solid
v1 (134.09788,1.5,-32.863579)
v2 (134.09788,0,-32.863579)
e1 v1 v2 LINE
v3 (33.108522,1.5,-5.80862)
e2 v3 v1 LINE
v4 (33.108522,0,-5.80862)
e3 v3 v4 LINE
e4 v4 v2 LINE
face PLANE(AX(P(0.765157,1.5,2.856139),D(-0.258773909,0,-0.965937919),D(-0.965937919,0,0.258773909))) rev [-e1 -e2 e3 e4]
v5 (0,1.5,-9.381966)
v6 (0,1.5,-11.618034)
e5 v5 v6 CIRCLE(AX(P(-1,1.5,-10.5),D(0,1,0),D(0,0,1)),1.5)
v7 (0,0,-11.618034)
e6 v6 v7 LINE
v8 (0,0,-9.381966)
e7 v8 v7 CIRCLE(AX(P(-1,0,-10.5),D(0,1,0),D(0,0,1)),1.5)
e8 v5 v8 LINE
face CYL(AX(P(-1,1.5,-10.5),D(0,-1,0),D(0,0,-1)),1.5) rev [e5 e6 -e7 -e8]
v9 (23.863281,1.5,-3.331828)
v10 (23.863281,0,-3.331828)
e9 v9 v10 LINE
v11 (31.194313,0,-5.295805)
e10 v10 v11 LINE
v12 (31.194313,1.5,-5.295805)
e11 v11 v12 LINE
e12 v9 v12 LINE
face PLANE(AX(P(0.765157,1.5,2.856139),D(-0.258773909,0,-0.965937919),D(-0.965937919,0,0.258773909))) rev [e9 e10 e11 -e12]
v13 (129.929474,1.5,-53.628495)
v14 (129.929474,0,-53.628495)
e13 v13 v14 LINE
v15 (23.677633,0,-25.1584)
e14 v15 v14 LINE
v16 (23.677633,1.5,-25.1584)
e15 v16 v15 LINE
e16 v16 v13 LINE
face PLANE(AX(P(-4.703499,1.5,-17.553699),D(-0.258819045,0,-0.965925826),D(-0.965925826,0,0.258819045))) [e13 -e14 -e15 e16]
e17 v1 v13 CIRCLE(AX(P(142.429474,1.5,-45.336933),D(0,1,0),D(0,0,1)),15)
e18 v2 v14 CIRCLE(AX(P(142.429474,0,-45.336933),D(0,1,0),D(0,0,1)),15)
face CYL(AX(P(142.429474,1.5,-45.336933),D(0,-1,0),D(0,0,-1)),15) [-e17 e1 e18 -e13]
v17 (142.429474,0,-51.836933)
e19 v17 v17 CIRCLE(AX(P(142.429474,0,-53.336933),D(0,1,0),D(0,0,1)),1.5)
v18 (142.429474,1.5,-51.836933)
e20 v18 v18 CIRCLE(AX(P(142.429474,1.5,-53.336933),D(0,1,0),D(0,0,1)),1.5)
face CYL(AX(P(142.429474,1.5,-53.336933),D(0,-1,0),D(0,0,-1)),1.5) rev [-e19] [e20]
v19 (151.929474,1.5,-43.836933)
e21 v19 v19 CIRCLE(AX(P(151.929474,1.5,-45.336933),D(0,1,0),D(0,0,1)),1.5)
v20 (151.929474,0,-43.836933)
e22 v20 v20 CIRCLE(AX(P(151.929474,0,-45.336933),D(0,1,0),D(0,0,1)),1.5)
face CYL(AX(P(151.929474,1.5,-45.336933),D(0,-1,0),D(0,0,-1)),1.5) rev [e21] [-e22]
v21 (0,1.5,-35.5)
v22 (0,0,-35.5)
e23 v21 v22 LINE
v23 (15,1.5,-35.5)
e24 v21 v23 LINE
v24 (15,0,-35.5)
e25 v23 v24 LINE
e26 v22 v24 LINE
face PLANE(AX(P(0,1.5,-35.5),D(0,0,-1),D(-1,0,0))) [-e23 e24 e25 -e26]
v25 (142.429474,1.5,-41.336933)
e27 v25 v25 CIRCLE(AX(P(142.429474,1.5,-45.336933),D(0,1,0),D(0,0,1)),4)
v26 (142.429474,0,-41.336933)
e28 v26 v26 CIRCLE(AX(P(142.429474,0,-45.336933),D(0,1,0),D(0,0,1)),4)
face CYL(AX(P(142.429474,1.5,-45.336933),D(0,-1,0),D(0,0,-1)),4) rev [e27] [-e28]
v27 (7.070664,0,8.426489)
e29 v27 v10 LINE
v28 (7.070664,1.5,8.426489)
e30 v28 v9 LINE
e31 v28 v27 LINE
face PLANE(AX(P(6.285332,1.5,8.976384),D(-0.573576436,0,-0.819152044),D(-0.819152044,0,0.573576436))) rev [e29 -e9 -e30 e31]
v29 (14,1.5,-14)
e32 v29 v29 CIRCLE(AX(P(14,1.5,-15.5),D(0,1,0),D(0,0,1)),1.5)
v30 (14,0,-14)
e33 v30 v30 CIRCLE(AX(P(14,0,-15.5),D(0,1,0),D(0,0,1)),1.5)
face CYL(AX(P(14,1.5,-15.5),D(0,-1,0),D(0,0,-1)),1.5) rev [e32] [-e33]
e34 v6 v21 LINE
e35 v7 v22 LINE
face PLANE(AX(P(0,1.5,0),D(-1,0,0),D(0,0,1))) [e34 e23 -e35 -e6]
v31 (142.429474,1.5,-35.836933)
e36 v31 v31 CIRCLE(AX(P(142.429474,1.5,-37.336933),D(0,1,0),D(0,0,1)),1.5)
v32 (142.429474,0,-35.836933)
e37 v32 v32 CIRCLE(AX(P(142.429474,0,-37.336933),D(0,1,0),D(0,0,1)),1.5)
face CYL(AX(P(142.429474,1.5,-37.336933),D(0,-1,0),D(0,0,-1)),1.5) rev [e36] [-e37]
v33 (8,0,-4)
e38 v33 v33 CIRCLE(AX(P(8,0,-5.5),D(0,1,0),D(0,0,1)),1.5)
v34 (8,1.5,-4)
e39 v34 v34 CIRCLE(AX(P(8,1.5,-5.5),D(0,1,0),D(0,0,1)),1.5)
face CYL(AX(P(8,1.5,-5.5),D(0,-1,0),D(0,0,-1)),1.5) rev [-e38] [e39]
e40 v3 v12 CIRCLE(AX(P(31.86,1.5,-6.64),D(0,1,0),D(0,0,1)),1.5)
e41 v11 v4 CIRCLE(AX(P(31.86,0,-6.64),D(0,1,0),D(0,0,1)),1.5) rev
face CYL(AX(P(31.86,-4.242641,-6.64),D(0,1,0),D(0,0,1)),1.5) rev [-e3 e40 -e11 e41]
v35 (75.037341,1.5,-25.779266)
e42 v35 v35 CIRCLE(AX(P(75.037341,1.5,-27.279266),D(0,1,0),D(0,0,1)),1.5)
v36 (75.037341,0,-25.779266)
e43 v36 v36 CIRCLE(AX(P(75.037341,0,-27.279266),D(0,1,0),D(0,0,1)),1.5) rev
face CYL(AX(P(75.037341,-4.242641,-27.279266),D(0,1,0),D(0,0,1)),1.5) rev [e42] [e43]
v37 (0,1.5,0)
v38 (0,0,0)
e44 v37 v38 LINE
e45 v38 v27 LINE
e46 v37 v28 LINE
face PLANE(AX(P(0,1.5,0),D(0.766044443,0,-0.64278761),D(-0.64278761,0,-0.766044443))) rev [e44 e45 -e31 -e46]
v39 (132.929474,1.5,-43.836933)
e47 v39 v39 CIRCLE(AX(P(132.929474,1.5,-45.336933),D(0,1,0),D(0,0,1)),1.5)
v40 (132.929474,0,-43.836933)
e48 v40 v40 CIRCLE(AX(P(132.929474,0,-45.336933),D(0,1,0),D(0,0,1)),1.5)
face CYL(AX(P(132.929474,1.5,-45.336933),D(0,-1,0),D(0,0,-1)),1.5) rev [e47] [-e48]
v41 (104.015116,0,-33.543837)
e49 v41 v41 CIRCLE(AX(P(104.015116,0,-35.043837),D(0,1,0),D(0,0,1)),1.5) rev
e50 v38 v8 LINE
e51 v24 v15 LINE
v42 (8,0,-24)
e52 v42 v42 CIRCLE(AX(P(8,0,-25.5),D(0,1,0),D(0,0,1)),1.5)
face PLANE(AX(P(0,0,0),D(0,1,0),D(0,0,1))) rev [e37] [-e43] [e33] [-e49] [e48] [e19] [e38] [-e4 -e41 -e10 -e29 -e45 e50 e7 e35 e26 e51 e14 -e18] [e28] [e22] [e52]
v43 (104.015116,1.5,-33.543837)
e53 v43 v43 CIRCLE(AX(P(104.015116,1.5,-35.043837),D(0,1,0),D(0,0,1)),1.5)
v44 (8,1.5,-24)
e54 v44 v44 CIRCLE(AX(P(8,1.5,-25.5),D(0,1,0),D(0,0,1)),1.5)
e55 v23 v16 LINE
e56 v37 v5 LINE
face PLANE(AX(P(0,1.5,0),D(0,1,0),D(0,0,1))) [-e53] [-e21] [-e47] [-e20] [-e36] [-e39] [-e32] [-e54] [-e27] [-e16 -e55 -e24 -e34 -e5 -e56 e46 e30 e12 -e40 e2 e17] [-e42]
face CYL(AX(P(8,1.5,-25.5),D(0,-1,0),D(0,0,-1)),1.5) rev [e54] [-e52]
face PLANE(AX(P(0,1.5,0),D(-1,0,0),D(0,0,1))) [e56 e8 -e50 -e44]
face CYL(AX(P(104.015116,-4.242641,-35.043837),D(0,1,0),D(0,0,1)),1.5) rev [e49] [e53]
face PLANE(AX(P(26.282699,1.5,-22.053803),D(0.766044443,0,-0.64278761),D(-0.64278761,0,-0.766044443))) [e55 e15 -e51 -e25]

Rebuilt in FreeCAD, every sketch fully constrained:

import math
import FreeCAD as App
import Part
import Sketcher
Q = App.Units.Quantity

doc = App.newDocument("Part")
body = doc.addObject("PartDesign::Body", "Body")

sketch1 = body.newObject("Sketcher::SketchObject", "Sketch")
sketch1.AttachmentSupport = (doc.getObject("XZ_Plane"), [""])
sketch1.MapMode = "FlatFace"
sketch1.addGeometry(Part.LineSegment(App.Vector(0, -9.381966, 0), App.Vector(0, 0, 0)), False)
sketch1.addGeometry(Part.LineSegment(App.Vector(0, 0, 0), App.Vector(7.070664, 8.426489, 0)), False)
sketch1.addGeometry(Part.LineSegment(App.Vector(7.070664, 8.426489, 0), App.Vector(23.863281, -3.331828, 0)), False)
sketch1.addGeometry(Part.LineSegment(App.Vector(23.863281, -3.331828, 0), App.Vector(134.09788, -32.863579, 0)), False)
sketch1.addGeometry(Part.ArcOfCircle(Part.Circle(App.Vector(142.429474, -45.336933, 0), App.Vector(0, 0, 1), 15), math.radians(-146.44269), math.radians(123.740995)), False)
sketch1.addGeometry(Part.LineSegment(App.Vector(129.929474, -53.628495, 0), App.Vector(23.677633, -25.1584, 0)), False)
sketch1.addGeometry(Part.LineSegment(App.Vector(23.677633, -25.1584, 0), App.Vector(15, -35.5, 0)), False)
sketch1.addGeometry(Part.LineSegment(App.Vector(15, -35.5, 0), App.Vector(0, -35.5, 0)), False)
sketch1.addGeometry(Part.LineSegment(App.Vector(0, -35.5, 0), App.Vector(0, -11.618034, 0)), False)
sketch1.addGeometry(Part.ArcOfCircle(Part.Circle(App.Vector(-1, -10.5, 0), App.Vector(0, 0, 1), 1.5), math.radians(-48.189685), math.radians(48.189685)), False)
sketch1.addGeometry(Part.Circle(App.Vector(8, -5.5, 0), App.Vector(0, 0, 1), 1.5), False)
sketch1.addGeometry(Part.Circle(App.Vector(14, -15.5, 0), App.Vector(0, 0, 1), 1.5), False)
sketch1.addGeometry(Part.Circle(App.Vector(8, -25.5, 0), App.Vector(0, 0, 1), 1.5), False)
sketch1.addGeometry(Part.Circle(App.Vector(142.429474, -37.336933, 0), App.Vector(0, 0, 1), 1.5), False)
sketch1.addGeometry(Part.Circle(App.Vector(151.929474, -45.336933, 0), App.Vector(0, 0, 1), 1.5), False)
sketch1.addGeometry(Part.Circle(App.Vector(142.429474, -45.336933, 0), App.Vector(0, 0, 1), 4), False)
sketch1.addGeometry(Part.Circle(App.Vector(132.929474, -45.336933, 0), App.Vector(0, 0, 1), 1.5), False)
sketch1.addGeometry(Part.Circle(App.Vector(142.429474, -53.336933, 0), App.Vector(0, 0, 1), 1.5), False)
sketch1.addConstraint(Sketcher.Constraint("Coincident", 0, 2, 1, 1))
sketch1.addConstraint(Sketcher.Constraint("Coincident", 1, 2, 2, 1))
sketch1.addConstraint(Sketcher.Constraint("Coincident", 2, 2, 3, 1))
sketch1.addConstraint(Sketcher.Constraint("Coincident", 3, 2, 4, 2))
sketch1.addConstraint(Sketcher.Constraint("Coincident", 4, 1, 5, 1))
sketch1.addConstraint(Sketcher.Constraint("Coincident", 5, 2, 6, 1))
sketch1.addConstraint(Sketcher.Constraint("Coincident", 6, 2, 7, 1))
sketch1.addConstraint(Sketcher.Constraint("Coincident", 7, 2, 8, 1))
sketch1.addConstraint(Sketcher.Constraint("Coincident", 8, 2, 9, 1))
sketch1.addConstraint(Sketcher.Constraint("Coincident", 9, 2, 0, 1))
sketch1.addConstraint(Sketcher.Constraint("Vertical", 0))
sketch1.addConstraint(Sketcher.Constraint("Horizontal", 7))
sketch1.addConstraint(Sketcher.Constraint("Vertical", 8))
sketch1.addConstraint(Sketcher.Constraint("Coincident", 0, 2, -1, 1))
sketch1.addConstraint(Sketcher.Constraint("Coincident", 15, 3, 4, 3))
sketch1.addConstraint(Sketcher.Constraint("Equal", 9, 10))
sketch1.addConstraint(Sketcher.Constraint("Equal", 10, 11))
sketch1.addConstraint(Sketcher.Constraint("Equal", 11, 12))
sketch1.addConstraint(Sketcher.Constraint("Equal", 12, 13))
sketch1.addConstraint(Sketcher.Constraint("Equal", 13, 14))
sketch1.addConstraint(Sketcher.Constraint("Equal", 14, 16))
sketch1.addConstraint(Sketcher.Constraint("Equal", 16, 17))
sketch1.addConstraint(Sketcher.Constraint("PointOnObject", 7, 2, -2))
sketch1.addConstraint(Sketcher.Constraint("Parallel", 1, 6))
sketch1.addConstraint(Sketcher.Constraint("Horizontal", 4, 3, 14, 3))
sketch1.addConstraint(Sketcher.Constraint("Horizontal", 15, 3, 16, 3))
sketch1.addConstraint(Sketcher.Constraint("Vertical", 10, 3, 12, 3))
sketch1.addConstraint(Sketcher.Constraint("Vertical", 4, 3, 13, 3))
sketch1.addConstraint(Sketcher.Constraint("Vertical", 15, 3, 17, 3))
sketch1.addConstraint(Sketcher.Constraint("Diameter", 10, 3.0))
sketch1.addConstraint(Sketcher.Constraint("Diameter", 15, 8.0))
sketch1.addConstraint(Sketcher.Constraint("Radius", 4, 15.0))
sketch1.addConstraint(Sketcher.Constraint("DistanceX", 7, 2, 7, 1, 15.0))
sketch1.addConstraint(Sketcher.Constraint("Angle", 1, Q("50 deg")))
sketch1.addConstraint(Sketcher.Constraint("Angle", 2, Q("-35 deg")))
sketch1.addConstraint(Sketcher.Constraint("Angle", 5, Q("165 deg")))
sketch1.addConstraint(Sketcher.Constraint("Distance", 1, 11.0))
sketch1.addConstraint(Sketcher.Constraint("Distance", 5, 110.0))
sketch1.addConstraint(Sketcher.Constraint("DistanceX", 9, 3, -1, 1, 1.0))
sketch1.addConstraint(Sketcher.Constraint("DistanceX", -1, 1, 10, 3, 8.0))
sketch1.addConstraint(Sketcher.Constraint("DistanceX", -1, 1, 11, 3, 14.0))
sketch1.addConstraint(Sketcher.Constraint("DistanceY", 9, 3, 10, 3, 5.0))
sketch1.addConstraint(Sketcher.Constraint("DistanceY", 11, 3, 10, 3, 10.0))
sketch1.addConstraint(Sketcher.Constraint("DistanceY", 12, 3, 11, 3, 10.0))
sketch1.addConstraint(Sketcher.Constraint("DistanceY", 4, 3, 13, 3, 8.0))
sketch1.addConstraint(Sketcher.Constraint("DistanceX", 16, 3, 14, 3, 19.0))
sketch1.addConstraint(Sketcher.Constraint("DistanceY", 17, 3, 4, 3, 8.0))
sketch1.addConstraint(Sketcher.Constraint("DistanceX", 4, 1, 16, 3, 3.0))
sketch1.addConstraint(Sketcher.Constraint("DistanceY", 6, 2, 12, 3, 10.0))
sketch1.addConstraint(Sketcher.Constraint("Distance", 2, 20.5))
sketch1.addConstraint(Sketcher.Constraint("Distance", 6, 13.5))
sketch1.addConstraint(Sketcher.Constraint("DistanceY", 9, 3, -1, 1, 10.5))
sketch1.addConstraint(Sketcher.Constraint("DistanceX", 4, 3, 14, 3, 9.5))
sketch1.addConstraint(Sketcher.Constraint("DistanceX", -1, 1, 3, 2, 134.09788))
pad1 = body.newObject("PartDesign::Pad", "Pad")
pad1.Profile = sketch1
pad1.Length = 1.5
pad1.Reversed = True

sketch2 = body.newObject("Sketcher::SketchObject", "Sketch001")
sketch2.AttachmentSupport = (doc.getObject("XZ_Plane"), [""])
sketch2.MapMode = "FlatFace"
sketch2.AttachmentOffset = App.Placement(App.Vector(0, 0, -1.5), App.Rotation())
sketch2.addGeometry(Part.Circle(App.Vector(31.86, -6.64, 0), App.Vector(0, 0, 1), 1.5), False)
sketch2.addConstraint(Sketcher.Constraint("Diameter", 0, 3.0))
sketch2.addConstraint(Sketcher.Constraint("DistanceX", -1, 1, 0, 3, 31.86))
sketch2.addConstraint(Sketcher.Constraint("DistanceY", 0, 3, -1, 1, 6.64))
pocket1 = body.newObject("PartDesign::Pocket", "Pocket")
pocket1.Profile = sketch2
pocket1.Length = 1.5
pocket1.Reversed = True

sketch3 = body.newObject("Sketcher::SketchObject", "Sketch002")
sketch3.AttachmentSupport = (doc.getObject("XZ_Plane"), [""])
sketch3.MapMode = "FlatFace"
sketch3.AttachmentOffset = App.Placement(App.Vector(0, 0, -1.5), App.Rotation())
sketch3.addGeometry(Part.Circle(App.Vector(75.037341, -27.279266, 0), App.Vector(0, 0, 1), 1.5), False)
sketch3.addGeometry(Part.Circle(App.Vector(104.015116, -35.043837, 0), App.Vector(0, 0, 1), 1.5), False)
sketch3.addConstraint(Sketcher.Constraint("Equal", 0, 1))
sketch3.addConstraint(Sketcher.Constraint("Diameter", 0, 3.0))
sketch3.addConstraint(Sketcher.Constraint("DistanceX", -1, 1, 0, 3, 75.037341))
sketch3.addConstraint(Sketcher.Constraint("DistanceY", 1, 3, 0, 3, 7.764571))
sketch3.addConstraint(Sketcher.Constraint("DistanceY", 0, 3, -1, 1, 27.279266))
sketch3.addConstraint(Sketcher.Constraint("DistanceX", -1, 1, 1, 3, 104.015116))
pocket2 = body.newObject("PartDesign::Pocket", "Pocket001")
pocket2.Profile = sketch3
pocket2.Length = 1.5
pocket2.Reversed = True

doc.recompute()
